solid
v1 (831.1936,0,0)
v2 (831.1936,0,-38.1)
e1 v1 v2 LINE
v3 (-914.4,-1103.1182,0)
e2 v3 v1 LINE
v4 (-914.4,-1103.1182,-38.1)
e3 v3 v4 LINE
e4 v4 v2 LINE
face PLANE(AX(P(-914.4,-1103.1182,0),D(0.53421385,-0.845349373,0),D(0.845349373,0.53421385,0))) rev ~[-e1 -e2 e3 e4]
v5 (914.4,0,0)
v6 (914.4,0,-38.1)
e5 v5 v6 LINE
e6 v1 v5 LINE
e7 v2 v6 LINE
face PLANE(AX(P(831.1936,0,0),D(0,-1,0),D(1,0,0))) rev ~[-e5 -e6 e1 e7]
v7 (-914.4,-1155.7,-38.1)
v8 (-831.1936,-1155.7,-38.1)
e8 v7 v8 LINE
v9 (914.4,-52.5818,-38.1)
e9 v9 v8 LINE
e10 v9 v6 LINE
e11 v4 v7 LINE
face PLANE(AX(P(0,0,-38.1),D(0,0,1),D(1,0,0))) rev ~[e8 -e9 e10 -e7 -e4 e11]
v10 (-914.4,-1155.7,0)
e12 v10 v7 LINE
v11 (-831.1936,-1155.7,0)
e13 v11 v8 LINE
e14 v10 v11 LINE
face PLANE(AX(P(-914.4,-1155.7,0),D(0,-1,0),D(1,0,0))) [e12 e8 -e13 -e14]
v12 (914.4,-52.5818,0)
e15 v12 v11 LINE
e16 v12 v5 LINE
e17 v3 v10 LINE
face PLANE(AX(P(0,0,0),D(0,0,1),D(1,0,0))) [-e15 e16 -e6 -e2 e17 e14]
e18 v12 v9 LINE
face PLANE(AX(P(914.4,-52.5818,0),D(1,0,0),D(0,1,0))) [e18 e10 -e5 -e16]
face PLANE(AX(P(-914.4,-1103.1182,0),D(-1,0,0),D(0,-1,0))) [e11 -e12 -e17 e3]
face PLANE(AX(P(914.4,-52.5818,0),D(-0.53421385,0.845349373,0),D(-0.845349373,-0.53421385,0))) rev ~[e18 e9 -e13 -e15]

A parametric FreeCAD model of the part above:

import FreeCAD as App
import Part
import Sketcher
Q = App.Units.Quantity

doc = App.newDocument("Part")
body = doc.addObject("PartDesign::Body", "Body")

# Sketch on XY plane
sketch1 = body.newObject("Sketcher::SketchObject", "Sketch")
sketch1.AttachmentSupport = (doc.getObject("XY_Plane"), [""])
sketch1.MapMode = "FlatFace"
sketch1.addGeometry(Part.LineSegment(App.Vector(914.4, 0, 0), App.Vector(831.1936, 0, 0)), False)
sketch1.addGeometry(Part.LineSegment(App.Vector(831.1936, 0, 0), App.Vector(-914.4, -1103.1182, 0)), False)
sketch1.addGeometry(Part.LineSegment(App.Vector(-914.4, -1103.1182, 0), App.Vector(-914.4, -1155.7, 0)), False)
sketch1.addGeometry(Part.LineSegment(App.Vector(-914.4, -1155.7, 0), App.Vector(-831.1936, -1155.7, 0)), False)
sketch1.addGeometry(Part.LineSegment(App.Vector(-831.1936, -1155.7, 0), App.Vector(914.4, -52.5818, 0)), False)
sketch1.addGeometry(Part.LineSegment(App.Vector(914.4, -52.5818, 0), App.Vector(914.4, 0, 0)), False)
sketch1.addConstraint(Sketcher.Constraint("Coincident", 0, 2, 1, 1))
sketch1.addConstraint(Sketcher.Constraint("Coincident", 1, 2, 2, 1))
sketch1.addConstraint(Sketcher.Constraint("Coincident", 2, 2, 3, 1))
sketch1.addConstraint(Sketcher.Constraint("Coincident", 3, 2, 4, 1))
sketch1.addConstraint(Sketcher.Constraint("Coincident", 4, 2, 5, 1))
sketch1.addConstraint(Sketcher.Constraint("Coincident", 5, 2, 0, 1))
sketch1.addConstraint(Sketcher.Constraint("Horizontal", 0))
sketch1.addConstraint(Sketcher.Constraint("Vertical", 2))
sketch1.addConstraint(Sketcher.Constraint("Horizontal", 3))
sketch1.addConstraint(Sketcher.Constraint("Vertical", 5))
sketch1.addConstraint(Sketcher.Constraint("PointOnObject", 0, 2, -1))
sketch1.addConstraint(Sketcher.Constraint("Parallel", 1, 4))
sketch1.addConstraint(Sketcher.Constraint("Equal", 0, 3))
sketch1.addConstraint(Sketcher.Constraint("DistanceX", 1, 2, -1, 1, Q("36 in")))
sketch1.addConstraint(Sketcher.Constraint("DistanceX", -1, 1, 4, 2, Q("36 in")))
sketch1.addConstraint(Sketcher.Constraint("DistanceY", 2, 2, -1, 1, Q("45.5 in")))
sketch1.addConstraint(Sketcher.Constraint("Angle", 1, Q("-147.7094 deg")))
sketch1.addConstraint(Sketcher.Constraint("DistanceX", 0, 2, 0, 1, 83.2064))
pad1 = body.newObject("PartDesign::Pad", "Pad")
pad1.Profile = sketch1
pad1.Length = Q("1.5 in")
pad1.Reversed = True

doc.recompute()
